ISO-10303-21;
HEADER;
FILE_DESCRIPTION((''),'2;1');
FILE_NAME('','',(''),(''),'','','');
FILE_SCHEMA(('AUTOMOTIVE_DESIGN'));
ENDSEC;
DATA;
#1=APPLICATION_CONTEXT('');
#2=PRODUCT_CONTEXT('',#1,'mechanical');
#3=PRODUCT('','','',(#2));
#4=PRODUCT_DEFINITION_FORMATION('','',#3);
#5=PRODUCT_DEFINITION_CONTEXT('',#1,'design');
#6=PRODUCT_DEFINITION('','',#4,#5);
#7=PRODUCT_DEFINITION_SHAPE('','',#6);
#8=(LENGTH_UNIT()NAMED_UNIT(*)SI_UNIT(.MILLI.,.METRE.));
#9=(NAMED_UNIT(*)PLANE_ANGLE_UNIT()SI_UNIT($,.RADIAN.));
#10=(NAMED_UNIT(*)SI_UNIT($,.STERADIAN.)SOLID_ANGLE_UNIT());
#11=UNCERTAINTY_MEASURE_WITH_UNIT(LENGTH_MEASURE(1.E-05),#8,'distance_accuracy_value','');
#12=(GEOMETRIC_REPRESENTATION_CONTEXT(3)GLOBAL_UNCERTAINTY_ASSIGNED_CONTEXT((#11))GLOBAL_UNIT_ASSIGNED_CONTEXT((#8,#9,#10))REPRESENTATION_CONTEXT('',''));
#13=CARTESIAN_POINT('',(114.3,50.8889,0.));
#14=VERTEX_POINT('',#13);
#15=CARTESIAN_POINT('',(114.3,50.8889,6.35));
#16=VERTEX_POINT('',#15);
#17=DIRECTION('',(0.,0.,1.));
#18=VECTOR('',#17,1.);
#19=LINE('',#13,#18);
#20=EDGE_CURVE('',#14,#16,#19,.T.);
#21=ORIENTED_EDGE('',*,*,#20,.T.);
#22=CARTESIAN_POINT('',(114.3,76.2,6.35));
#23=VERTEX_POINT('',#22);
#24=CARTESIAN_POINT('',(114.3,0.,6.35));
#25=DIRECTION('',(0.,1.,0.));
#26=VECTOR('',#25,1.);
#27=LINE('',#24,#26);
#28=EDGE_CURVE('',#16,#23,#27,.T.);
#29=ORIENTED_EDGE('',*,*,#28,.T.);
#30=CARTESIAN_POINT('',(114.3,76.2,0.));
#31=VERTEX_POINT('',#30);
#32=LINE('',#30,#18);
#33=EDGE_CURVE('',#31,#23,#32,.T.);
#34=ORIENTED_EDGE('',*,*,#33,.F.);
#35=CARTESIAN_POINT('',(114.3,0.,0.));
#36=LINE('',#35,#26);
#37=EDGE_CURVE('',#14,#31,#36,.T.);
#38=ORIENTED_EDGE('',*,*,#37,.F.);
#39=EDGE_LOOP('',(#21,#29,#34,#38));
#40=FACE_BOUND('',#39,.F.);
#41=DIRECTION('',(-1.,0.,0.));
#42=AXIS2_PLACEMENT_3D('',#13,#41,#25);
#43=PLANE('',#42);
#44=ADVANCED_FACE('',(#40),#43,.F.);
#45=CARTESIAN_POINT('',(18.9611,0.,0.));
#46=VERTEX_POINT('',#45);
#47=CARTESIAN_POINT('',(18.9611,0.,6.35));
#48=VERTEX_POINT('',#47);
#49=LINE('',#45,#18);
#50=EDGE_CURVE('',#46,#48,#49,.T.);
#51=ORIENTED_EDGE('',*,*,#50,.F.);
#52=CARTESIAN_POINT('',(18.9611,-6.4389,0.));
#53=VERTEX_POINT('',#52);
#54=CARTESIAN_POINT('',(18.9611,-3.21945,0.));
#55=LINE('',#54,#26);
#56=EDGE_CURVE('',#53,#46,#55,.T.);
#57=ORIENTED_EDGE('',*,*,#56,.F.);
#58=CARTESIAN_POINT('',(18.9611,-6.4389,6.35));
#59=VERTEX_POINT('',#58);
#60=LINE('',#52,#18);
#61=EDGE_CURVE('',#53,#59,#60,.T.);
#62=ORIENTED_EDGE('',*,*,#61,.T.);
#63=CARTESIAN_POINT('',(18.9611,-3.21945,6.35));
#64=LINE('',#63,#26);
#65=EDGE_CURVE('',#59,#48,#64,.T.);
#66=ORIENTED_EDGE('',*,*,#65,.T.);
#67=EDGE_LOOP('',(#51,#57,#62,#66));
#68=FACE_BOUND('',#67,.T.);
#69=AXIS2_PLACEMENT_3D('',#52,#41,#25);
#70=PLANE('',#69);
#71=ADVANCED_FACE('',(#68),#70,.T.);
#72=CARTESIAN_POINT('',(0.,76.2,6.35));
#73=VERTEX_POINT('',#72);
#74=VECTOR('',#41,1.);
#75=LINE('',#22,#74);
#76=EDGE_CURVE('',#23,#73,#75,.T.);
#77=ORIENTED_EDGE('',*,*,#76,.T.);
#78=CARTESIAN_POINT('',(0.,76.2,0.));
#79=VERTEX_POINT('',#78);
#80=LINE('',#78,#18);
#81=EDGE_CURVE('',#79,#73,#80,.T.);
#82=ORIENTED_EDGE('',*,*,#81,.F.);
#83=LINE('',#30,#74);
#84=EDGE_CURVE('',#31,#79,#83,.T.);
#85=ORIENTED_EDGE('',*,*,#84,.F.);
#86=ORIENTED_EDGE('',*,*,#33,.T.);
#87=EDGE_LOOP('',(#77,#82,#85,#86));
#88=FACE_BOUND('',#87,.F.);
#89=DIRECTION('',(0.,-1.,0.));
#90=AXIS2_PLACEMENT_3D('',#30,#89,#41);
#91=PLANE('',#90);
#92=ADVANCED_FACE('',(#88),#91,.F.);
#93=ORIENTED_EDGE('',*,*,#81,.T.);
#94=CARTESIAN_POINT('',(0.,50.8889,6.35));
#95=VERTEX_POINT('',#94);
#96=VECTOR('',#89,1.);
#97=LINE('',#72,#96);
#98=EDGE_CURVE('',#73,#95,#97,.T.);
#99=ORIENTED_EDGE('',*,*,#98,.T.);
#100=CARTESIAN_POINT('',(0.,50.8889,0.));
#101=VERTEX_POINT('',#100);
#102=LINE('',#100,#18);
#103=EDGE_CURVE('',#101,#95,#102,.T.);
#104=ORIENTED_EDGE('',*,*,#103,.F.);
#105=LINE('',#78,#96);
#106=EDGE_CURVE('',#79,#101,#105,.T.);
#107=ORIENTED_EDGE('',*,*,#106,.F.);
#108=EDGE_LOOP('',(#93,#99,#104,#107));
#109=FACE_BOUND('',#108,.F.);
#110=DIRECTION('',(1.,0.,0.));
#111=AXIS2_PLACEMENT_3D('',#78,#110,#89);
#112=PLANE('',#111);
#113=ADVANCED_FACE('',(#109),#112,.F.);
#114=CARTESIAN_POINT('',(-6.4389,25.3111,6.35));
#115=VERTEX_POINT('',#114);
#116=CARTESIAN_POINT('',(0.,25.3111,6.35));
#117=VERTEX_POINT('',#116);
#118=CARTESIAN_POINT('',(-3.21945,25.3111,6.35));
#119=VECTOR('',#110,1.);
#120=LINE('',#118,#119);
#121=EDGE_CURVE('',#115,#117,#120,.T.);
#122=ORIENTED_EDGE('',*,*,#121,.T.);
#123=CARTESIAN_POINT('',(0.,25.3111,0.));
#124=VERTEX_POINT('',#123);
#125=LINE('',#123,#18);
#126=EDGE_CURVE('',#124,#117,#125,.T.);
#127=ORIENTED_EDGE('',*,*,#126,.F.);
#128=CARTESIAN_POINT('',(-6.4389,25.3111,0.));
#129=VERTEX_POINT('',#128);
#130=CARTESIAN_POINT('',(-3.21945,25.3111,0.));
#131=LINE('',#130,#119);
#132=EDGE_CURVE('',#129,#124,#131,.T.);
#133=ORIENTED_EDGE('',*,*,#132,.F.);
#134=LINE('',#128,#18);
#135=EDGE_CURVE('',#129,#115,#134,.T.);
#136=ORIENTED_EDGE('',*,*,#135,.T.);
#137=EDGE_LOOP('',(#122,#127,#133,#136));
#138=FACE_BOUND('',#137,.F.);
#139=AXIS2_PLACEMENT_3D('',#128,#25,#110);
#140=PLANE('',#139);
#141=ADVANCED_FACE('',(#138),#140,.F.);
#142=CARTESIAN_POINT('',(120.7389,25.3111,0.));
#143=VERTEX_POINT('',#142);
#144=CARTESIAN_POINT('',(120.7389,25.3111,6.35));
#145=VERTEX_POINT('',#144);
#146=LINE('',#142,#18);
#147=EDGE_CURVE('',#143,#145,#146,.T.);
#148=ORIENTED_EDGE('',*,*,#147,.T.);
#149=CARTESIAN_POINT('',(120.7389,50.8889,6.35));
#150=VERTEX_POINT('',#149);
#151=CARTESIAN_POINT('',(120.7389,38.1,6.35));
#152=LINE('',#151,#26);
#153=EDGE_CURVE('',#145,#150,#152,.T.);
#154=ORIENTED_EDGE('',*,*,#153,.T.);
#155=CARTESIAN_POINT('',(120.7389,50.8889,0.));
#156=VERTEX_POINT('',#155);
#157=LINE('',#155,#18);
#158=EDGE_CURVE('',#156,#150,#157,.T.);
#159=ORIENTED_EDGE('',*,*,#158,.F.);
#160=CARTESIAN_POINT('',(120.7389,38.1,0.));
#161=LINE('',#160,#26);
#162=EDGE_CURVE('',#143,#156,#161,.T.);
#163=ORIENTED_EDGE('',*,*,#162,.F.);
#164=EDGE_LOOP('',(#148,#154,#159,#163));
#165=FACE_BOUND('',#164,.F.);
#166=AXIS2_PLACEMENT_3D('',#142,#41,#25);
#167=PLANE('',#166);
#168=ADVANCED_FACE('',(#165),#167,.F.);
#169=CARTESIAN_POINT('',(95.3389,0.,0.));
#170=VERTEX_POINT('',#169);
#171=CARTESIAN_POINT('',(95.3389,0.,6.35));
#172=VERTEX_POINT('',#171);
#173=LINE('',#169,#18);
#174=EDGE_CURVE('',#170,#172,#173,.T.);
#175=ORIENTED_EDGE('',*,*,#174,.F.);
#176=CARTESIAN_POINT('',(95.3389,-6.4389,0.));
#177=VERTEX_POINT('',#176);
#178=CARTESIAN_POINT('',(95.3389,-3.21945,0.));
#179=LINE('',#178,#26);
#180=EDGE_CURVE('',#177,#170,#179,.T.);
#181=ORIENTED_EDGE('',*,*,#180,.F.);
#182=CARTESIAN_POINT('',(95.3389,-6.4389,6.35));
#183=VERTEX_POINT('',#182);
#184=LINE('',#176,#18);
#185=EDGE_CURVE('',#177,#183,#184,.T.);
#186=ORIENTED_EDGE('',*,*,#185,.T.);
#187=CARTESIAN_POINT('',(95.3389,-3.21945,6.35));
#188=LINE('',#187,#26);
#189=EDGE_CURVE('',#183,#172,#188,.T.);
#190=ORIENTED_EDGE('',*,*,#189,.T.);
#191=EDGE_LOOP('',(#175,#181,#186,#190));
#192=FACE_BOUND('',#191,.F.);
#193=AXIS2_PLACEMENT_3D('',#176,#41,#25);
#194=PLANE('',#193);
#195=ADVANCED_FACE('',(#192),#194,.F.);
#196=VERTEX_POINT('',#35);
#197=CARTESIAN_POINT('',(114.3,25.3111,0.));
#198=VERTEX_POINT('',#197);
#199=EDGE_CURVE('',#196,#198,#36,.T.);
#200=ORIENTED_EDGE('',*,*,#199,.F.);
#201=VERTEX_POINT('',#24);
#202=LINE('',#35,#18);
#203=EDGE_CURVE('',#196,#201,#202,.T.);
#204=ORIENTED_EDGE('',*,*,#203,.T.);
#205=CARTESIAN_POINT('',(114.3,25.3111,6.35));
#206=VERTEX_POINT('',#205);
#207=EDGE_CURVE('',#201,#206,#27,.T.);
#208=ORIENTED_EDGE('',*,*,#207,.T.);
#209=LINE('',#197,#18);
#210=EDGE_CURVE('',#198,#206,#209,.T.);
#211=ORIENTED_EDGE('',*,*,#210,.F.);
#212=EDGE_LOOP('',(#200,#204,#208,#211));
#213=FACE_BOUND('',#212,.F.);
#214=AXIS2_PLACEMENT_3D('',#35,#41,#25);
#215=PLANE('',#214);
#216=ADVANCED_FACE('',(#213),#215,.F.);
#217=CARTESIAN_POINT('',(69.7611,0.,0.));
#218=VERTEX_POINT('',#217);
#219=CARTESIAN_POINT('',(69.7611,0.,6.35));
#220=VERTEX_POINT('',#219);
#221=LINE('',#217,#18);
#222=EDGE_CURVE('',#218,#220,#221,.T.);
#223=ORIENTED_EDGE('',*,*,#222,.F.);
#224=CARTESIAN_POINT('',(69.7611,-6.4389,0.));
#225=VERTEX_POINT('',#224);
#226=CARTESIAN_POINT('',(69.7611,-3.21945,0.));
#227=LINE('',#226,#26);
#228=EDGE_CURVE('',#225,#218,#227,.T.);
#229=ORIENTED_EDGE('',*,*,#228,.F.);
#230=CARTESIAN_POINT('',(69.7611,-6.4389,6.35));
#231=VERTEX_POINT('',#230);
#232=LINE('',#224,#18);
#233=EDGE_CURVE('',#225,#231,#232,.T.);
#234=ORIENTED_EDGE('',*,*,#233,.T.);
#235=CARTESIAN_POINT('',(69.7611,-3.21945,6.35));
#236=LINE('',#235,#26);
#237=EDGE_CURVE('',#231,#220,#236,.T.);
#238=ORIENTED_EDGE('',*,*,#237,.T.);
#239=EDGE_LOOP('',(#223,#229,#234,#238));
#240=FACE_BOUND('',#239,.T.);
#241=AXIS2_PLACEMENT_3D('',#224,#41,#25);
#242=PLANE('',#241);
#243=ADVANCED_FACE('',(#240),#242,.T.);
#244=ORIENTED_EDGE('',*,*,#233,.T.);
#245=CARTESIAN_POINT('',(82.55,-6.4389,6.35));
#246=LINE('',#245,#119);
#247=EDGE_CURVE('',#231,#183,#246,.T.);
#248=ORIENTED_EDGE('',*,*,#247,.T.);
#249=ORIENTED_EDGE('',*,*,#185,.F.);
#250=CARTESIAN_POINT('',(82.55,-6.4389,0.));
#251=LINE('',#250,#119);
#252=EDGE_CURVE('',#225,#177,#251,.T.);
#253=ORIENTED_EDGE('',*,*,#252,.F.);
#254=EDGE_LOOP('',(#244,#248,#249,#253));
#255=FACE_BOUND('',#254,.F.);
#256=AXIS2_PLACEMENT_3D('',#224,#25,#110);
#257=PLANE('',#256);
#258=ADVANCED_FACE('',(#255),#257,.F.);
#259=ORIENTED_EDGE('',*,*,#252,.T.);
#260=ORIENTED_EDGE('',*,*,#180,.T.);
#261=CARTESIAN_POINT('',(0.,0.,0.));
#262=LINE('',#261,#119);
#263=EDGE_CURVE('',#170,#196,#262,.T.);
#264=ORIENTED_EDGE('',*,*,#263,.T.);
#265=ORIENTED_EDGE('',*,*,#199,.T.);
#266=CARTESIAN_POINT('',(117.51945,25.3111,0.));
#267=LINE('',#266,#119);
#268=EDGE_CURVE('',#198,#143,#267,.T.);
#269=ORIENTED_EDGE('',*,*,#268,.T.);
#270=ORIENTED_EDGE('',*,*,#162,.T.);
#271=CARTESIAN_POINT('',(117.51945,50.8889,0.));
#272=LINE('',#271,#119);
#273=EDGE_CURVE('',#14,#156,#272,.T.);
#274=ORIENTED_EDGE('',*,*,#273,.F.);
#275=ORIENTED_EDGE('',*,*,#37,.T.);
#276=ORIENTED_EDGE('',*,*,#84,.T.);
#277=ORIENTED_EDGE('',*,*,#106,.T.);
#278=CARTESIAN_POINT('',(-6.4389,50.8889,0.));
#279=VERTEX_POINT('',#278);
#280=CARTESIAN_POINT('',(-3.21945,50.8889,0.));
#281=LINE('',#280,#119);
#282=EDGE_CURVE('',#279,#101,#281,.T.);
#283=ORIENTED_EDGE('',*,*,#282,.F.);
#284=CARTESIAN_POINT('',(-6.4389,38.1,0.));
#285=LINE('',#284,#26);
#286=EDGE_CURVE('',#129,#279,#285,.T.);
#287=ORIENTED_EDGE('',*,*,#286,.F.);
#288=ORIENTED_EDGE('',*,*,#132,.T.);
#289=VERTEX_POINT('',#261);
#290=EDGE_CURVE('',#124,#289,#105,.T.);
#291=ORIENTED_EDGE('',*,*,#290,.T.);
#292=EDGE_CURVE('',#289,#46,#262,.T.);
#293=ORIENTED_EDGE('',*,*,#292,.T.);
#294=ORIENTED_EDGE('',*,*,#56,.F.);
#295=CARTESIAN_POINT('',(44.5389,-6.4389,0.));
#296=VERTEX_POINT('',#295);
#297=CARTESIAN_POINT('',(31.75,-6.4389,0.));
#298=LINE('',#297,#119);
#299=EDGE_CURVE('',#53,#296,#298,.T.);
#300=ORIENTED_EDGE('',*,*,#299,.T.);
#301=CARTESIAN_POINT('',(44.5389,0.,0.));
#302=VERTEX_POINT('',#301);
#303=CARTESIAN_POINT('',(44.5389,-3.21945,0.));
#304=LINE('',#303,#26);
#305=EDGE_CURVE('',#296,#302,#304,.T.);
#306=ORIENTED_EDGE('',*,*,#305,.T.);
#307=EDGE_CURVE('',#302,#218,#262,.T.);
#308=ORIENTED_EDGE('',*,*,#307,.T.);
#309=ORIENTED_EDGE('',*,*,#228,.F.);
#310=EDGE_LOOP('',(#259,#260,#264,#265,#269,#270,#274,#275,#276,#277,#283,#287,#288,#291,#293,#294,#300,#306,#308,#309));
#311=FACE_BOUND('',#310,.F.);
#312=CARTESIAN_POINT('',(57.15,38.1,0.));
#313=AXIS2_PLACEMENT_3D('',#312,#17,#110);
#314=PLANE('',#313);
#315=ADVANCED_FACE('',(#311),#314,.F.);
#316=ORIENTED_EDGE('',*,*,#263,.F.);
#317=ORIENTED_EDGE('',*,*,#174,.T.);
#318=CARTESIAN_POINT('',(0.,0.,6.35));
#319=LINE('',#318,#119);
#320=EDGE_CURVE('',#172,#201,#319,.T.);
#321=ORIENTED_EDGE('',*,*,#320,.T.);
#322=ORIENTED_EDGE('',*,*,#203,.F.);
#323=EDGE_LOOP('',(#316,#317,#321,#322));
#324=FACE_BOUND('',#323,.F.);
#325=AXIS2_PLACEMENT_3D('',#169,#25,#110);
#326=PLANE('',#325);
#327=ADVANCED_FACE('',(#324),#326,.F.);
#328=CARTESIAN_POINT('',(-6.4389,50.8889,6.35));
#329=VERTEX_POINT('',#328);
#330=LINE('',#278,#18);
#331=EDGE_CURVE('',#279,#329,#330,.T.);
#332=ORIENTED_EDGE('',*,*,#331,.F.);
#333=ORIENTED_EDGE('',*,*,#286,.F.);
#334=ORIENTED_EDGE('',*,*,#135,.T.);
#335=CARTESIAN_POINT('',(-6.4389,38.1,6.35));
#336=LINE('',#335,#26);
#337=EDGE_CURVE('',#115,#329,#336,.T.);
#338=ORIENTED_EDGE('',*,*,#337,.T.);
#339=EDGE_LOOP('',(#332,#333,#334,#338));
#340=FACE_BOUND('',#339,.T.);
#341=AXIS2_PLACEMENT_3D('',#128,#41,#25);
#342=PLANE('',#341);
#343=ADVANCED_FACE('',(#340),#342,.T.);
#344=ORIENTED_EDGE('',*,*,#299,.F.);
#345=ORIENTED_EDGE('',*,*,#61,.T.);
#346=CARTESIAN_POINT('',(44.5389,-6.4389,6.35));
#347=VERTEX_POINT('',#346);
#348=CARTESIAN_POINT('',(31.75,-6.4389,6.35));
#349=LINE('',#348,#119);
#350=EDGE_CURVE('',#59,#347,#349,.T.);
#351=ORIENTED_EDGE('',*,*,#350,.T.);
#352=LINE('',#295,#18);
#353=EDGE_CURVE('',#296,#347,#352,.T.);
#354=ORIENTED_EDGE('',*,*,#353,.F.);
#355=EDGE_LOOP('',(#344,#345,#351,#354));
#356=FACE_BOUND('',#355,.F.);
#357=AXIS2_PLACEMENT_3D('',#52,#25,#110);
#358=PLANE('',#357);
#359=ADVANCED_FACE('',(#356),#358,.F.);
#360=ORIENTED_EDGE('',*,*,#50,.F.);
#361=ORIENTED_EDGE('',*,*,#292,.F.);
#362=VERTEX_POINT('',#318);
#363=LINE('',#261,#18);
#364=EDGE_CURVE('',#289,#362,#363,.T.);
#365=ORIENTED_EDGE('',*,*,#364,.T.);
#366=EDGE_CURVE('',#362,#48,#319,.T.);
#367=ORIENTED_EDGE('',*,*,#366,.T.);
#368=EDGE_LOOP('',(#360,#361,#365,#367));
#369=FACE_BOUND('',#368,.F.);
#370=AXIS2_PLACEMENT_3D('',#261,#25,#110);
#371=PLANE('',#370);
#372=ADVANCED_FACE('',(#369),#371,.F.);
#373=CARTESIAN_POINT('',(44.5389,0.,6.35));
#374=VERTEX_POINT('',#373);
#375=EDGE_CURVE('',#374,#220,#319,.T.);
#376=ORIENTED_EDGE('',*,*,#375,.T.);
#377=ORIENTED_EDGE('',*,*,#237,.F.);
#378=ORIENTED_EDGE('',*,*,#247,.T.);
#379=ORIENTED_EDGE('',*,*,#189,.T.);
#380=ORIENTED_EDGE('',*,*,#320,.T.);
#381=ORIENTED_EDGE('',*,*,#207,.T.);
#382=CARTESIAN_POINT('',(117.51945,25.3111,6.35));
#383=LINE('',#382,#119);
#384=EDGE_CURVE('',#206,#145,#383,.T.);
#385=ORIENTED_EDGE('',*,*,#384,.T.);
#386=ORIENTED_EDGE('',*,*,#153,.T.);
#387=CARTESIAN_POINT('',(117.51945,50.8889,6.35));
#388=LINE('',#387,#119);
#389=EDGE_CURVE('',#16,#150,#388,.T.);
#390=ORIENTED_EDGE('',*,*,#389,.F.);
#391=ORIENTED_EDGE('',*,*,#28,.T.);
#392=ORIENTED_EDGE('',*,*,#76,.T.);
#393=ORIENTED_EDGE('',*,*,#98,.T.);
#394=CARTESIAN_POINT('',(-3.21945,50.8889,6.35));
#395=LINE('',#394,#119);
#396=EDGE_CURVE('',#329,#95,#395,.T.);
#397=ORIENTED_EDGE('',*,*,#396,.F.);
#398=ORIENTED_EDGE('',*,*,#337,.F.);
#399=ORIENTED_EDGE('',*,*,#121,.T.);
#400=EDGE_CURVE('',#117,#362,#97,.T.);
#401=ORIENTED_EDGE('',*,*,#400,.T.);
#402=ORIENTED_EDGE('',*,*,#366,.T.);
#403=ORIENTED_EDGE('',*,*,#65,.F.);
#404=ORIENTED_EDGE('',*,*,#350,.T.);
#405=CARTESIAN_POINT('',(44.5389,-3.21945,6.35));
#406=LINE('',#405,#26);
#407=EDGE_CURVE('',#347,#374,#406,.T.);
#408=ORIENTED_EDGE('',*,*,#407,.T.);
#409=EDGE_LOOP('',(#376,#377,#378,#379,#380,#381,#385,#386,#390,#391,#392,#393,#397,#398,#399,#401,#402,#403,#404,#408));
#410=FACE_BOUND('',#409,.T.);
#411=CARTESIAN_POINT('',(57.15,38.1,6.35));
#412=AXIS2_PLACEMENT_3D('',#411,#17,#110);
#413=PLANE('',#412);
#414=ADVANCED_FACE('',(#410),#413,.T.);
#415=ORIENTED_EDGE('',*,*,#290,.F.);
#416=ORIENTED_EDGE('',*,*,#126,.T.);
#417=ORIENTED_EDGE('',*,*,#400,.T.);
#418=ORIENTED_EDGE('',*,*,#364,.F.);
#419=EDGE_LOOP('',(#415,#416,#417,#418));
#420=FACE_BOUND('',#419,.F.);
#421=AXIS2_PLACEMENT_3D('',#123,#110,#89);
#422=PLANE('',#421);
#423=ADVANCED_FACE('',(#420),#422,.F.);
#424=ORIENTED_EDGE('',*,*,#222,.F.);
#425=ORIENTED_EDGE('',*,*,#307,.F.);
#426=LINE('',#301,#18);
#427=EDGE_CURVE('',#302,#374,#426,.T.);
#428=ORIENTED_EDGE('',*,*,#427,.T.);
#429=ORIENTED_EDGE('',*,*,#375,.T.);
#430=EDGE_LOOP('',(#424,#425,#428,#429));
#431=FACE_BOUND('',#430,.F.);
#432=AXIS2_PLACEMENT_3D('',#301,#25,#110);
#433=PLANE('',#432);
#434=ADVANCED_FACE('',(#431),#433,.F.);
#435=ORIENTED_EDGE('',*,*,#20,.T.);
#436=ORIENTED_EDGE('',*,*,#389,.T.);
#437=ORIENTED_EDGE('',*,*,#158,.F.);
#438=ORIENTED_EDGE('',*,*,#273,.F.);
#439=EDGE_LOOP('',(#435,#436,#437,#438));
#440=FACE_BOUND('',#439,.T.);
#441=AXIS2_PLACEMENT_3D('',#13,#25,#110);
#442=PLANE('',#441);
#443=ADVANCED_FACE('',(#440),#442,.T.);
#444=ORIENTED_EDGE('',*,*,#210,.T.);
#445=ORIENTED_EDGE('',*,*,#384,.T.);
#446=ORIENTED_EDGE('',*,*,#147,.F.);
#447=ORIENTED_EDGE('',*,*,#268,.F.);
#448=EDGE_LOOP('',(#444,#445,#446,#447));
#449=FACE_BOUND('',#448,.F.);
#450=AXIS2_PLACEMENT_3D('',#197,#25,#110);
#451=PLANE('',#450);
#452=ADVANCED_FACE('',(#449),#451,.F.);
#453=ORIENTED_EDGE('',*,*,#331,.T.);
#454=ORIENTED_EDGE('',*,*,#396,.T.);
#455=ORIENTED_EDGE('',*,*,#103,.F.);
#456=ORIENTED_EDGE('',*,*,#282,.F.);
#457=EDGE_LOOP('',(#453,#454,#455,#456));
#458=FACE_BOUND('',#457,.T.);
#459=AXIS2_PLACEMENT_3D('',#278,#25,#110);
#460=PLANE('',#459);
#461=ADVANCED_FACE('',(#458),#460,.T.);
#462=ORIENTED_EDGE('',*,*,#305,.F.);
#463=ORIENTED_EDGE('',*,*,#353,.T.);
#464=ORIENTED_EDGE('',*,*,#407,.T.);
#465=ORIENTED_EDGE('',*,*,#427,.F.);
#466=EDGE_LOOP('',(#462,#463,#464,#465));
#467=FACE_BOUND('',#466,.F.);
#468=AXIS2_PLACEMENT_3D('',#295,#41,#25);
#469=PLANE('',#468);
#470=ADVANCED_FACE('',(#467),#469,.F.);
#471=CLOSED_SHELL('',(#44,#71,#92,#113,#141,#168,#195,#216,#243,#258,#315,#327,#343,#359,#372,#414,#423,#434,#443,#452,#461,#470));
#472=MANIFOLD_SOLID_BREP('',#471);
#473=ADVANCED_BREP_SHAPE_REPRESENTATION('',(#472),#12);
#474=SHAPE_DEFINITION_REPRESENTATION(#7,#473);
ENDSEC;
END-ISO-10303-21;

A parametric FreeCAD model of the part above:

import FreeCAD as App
import Part
import Sketcher

V = App.Vector
Q = App.Units.Quantity

doc = App.newDocument("Part")
body = doc.addObject("PartDesign::Body", "Body")

# Sketch on XY plane
sketch1 = body.newObject("Sketcher::SketchObject", "Sketch")
sketch1.AttachmentSupport = (doc.getObject("XY_Plane"), [""])
sketch1.MapMode = "FlatFace"
sketch1.addGeometry([
    Part.LineSegment(V(0, 0, 0), V(19, 0, 0)),  # 0
    Part.LineSegment(V(19, 0, 0), V(19, -6, 0)),  # 1
    Part.LineSegment(V(19, -6, 0), V(45, -6, 0)),  # 2
    Part.LineSegment(V(45, -6, 0), V(45, 0, 0)),  # 3
    Part.LineSegment(V(45, 0, 0), V(70, 0, 0)),  # 4
    Part.LineSegment(V(70, 0, 0), V(70, -6, 0)),  # 5
    Part.LineSegment(V(70, -6, 0), V(95, -6, 0)),  # 6
    Part.LineSegment(V(95, -6, 0), V(95, 0, 0)),  # 7
    Part.LineSegment(V(95, 0, 0), V(114, 0, 0)),  # 8
    Part.LineSegment(V(114, 0, 0), V(114, 25, 0)),  # 9
    Part.LineSegment(V(114, 25, 0), V(121, 25, 0)),  # 10
    Part.LineSegment(V(121, 25, 0), V(121, 51, 0)),  # 11
    Part.LineSegment(V(121, 51, 0), V(114, 51, 0)),  # 12
    Part.LineSegment(V(114, 51, 0), V(114, 76, 0)),  # 13
    Part.LineSegment(V(114, 76, 0), V(0, 76, 0)),  # 14
    Part.LineSegment(V(0, 76, 0), V(0, 51, 0)),  # 15
    Part.LineSegment(V(0, 51, 0), V(-6, 51, 0)),  # 16
    Part.LineSegment(V(-6, 51, 0), V(-6, 25, 0)),  # 17
    Part.LineSegment(V(-6, 25, 0), V(0, 25, 0)),  # 18
    Part.LineSegment(V(0, 25, 0), V(0, 0, 0)),  # 19
], False)
sketch1.addConstraint([
    Sketcher.Constraint("Coincident", 0, 2, 1, 1),
    Sketcher.Constraint("Coincident", 1, 2, 2, 1),
    Sketcher.Constraint("Coincident", 2, 2, 3, 1),
    Sketcher.Constraint("Coincident", 3, 2, 4, 1),
    Sketcher.Constraint("Coincident", 4, 2, 5, 1),
    Sketcher.Constraint("Coincident", 5, 2, 6, 1),
    Sketcher.Constraint("Coincident", 6, 2, 7, 1),
    Sketcher.Constraint("Coincident", 7, 2, 8, 1),
    Sketcher.Constraint("Coincident", 8, 2, 9, 1),
    Sketcher.Constraint("Coincident", 9, 2, 10, 1),
    Sketcher.Constraint("Coincident", 10, 2, 11, 1),
    Sketcher.Constraint("Coincident", 11, 2, 12, 1),
    Sketcher.Constraint("Coincident", 12, 2, 13, 1),
    Sketcher.Constraint("Coincident", 13, 2, 14, 1),
    Sketcher.Constraint("Coincident", 14, 2, 15, 1),
    Sketcher.Constraint("Coincident", 15, 2, 16, 1),
    Sketcher.Constraint("Coincident", 16, 2, 17, 1),
    Sketcher.Constraint("Coincident", 17, 2, 18, 1),
    Sketcher.Constraint("Coincident", 18, 2, 19, 1),
    Sketcher.Constraint("Coincident", 19, 2, 0, 1),
    Sketcher.Constraint("Horizontal", 0),
    Sketcher.Constraint("Vertical", 1),
    Sketcher.Constraint("Horizontal", 2),
    Sketcher.Constraint("Vertical", 3),
    Sketcher.Constraint("Horizontal", 4),
    Sketcher.Constraint("Vertical", 5),
    Sketcher.Constraint("Horizontal", 6),
    Sketcher.Constraint("Vertical", 7),
    Sketcher.Constraint("Horizontal", 8),
    Sketcher.Constraint("Vertical", 9),
    Sketcher.Constraint("Horizontal", 10),
    Sketcher.Constraint("Vertical", 11),
    Sketcher.Constraint("Horizontal", 12),
    Sketcher.Constraint("Vertical", 13),
    Sketcher.Constraint("Horizontal", 14),
    Sketcher.Constraint("Vertical", 15),
    Sketcher.Constraint("Horizontal", 16),
    Sketcher.Constraint("Vertical", 17),
    Sketcher.Constraint("Horizontal", 18),
    Sketcher.Constraint("Vertical", 19),
    Sketcher.Constraint("Coincident", 19, 2, -1, 1),
    Sketcher.Constraint("PointOnObject", 3, 2, -1),
    Sketcher.Constraint("PointOnObject", 7, 2, -1),
    Sketcher.Constraint("PointOnObject", 14, 2, -2),
    Sketcher.Constraint("Horizontal", 2, 2, 5, 2),
    Sketcher.Constraint("Horizontal", 12, 2, 15, 2),
    Sketcher.Constraint("Horizontal", 10, 2, 17, 2),
    Sketcher.Constraint("Vertical", 9, 2, 12, 2),
    Sketcher.Constraint("Equal", 2, 6),
    Sketcher.Constraint("Equal", 0, 8),
    Sketcher.Constraint("Equal", 12, 16),
    Sketcher.Constraint("Equal", 18, 1),
    Sketcher.Constraint("Equal", 6, 11),
    Sketcher.Constraint("Equal", 9, 13),
    Sketcher.Constraint("DistanceX", 14, 2, 14, 1, Q("4.5 in")),
    Sketcher.Constraint("DistanceY", -1, 1, 13, 2, Q("3 in")),
    Sketcher.Constraint("DistanceX", 0, 2, 4, 2, Q("2 in")),
    Sketcher.Constraint("DistanceX", 7, 2, 10, 2, Q("1 in")),
    Sketcher.Constraint("DistanceX", 2, 1, 2, 2, Q("1.007 in")),
])
pad1 = body.newObject("PartDesign::Pad", "Pad")
pad1.Profile = sketch1
pad1.Length = Q("0.25 in")

doc.recompute()
